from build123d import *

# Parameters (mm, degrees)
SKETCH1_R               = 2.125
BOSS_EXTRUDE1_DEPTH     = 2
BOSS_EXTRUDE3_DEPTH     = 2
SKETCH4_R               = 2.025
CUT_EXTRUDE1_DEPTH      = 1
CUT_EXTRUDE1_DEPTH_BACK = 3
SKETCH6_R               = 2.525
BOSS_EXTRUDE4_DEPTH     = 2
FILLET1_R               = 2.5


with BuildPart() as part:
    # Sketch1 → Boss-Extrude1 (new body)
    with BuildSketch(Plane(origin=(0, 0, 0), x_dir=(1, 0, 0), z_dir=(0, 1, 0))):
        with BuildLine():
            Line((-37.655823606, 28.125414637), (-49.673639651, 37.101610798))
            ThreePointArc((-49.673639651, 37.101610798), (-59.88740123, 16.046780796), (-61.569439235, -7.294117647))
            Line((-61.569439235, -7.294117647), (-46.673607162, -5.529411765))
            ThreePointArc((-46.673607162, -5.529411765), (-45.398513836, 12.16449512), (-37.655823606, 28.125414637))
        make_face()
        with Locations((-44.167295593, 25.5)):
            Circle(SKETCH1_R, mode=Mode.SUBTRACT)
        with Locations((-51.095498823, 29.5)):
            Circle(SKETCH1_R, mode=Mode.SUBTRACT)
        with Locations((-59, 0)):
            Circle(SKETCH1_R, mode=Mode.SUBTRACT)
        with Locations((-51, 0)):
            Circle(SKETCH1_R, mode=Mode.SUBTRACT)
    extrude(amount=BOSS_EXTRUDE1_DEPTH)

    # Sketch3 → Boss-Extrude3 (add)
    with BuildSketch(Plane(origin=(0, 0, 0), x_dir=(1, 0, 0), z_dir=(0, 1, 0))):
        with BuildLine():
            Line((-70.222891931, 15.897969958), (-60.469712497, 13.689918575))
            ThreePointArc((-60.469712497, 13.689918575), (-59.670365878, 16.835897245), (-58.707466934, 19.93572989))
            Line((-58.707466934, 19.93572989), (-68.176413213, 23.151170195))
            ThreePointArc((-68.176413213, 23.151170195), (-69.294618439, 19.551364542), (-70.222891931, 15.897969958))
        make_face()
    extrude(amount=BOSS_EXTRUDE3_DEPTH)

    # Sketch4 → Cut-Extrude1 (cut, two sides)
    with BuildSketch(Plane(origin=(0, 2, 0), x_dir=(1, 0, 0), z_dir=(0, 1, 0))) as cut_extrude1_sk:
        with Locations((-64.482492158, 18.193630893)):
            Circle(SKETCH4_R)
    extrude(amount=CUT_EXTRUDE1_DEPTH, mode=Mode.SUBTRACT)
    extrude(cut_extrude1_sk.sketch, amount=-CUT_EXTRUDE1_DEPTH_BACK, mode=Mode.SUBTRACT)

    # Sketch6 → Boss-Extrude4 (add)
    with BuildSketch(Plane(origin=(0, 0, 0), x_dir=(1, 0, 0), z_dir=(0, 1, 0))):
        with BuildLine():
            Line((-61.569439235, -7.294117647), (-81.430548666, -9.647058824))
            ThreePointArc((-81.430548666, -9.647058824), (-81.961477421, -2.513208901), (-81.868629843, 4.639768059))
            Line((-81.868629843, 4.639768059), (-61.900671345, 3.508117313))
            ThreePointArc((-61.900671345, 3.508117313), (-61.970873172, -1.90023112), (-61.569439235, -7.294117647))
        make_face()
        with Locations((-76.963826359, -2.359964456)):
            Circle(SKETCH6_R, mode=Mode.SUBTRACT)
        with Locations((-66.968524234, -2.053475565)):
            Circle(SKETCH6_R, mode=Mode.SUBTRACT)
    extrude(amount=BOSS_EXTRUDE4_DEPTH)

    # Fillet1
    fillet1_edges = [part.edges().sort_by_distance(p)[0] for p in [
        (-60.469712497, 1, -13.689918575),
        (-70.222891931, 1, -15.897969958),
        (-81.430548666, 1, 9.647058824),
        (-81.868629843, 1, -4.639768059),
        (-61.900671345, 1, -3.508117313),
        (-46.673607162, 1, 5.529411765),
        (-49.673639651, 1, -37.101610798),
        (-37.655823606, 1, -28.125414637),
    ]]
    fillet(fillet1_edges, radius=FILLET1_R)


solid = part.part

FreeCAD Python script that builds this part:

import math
import FreeCAD as App
import Part
import Sketcher


def edges_at(feature, points):
    """Names of the edges that pass closest to the given points."""
    edges = feature.Shape.Edges
    near = lambda p: min(range(len(edges)), key=lambda i: edges[i].distToShape(Part.Vertex(*p))[0])
    return sorted({f"Edge{near(p) + 1}" for p in points})

doc = App.newDocument("Part")
body = doc.addObject("PartDesign::Body", "Body")

sketch1 = body.newObject("Sketcher::SketchObject", "Sketch")
sketch1.AttachmentSupport = (doc.getObject("XZ_Plane"), [""])
sketch1.MapMode = "FlatFace"
sketch1.addGeometry([
    Part.LineSegment(App.Vector(-37.655824, -28.125415, 0), App.Vector(-49.67364, -37.101611, 0)),
    Part.ArcOfCircle(Part.Circle(App.Vector(0, 0, 0), App.Vector(0, 0, 1), 62), math.radians(173.243673), math.radians(216.756327)),
    Part.LineSegment(App.Vector(-61.569439, 7.294118, 0), App.Vector(-46.673607, 5.529412, 0)),
    Part.ArcOfCircle(Part.Circle(App.Vector(0, 0, 0), App.Vector(0, 0, 1), 47), math.radians(173.243673), math.radians(216.756327)),
    Part.Circle(App.Vector(-59, 0, 0), App.Vector(0, 0, 1), 2.125),
    Part.Circle(App.Vector(-51, 0, 0), App.Vector(0, 0, 1), 2.125),
    Part.Circle(App.Vector(-51.095499, -29.5, 0), App.Vector(0, 0, 1), 2.125),
    Part.Circle(App.Vector(-44.167296, -25.5, 0), App.Vector(0, 0, 1), 2.125),
], False)
sketch1.addConstraint([
    Sketcher.Constraint("Coincident", 0, 2, 1, 2),
    Sketcher.Constraint("Coincident", 1, 1, 2, 1),
    Sketcher.Constraint("Coincident", 2, 2, 3, 1),
    Sketcher.Constraint("Coincident", 3, 2, 0, 1),
    Sketcher.Constraint("Coincident", 1, 3, -1, 1),
    Sketcher.Constraint("Coincident", 3, 3, -1, 1),
    Sketcher.Constraint("Equal", 4, 5),
    Sketcher.Constraint("Equal", 5, 6),
    Sketcher.Constraint("Equal", 6, 7),
    Sketcher.Constraint("PointOnObject", 4, 3, -1),
    Sketcher.Constraint("PointOnObject", 5, 3, -1),
    Sketcher.Constraint("Radius", 1, 62.0),
    Sketcher.Constraint("Radius", 3, 47.0),
    Sketcher.Constraint("Diameter", 4, 4.25),
    Sketcher.Constraint("DistanceX", 4, 3, -1, 1, 59.0),
    Sketcher.Constraint("DistanceX", 5, 3, -1, 1, 51.0),
    Sketcher.Constraint("DistanceY", 6, 3, 7, 3, 4.0),
    Sketcher.Constraint("DistanceY", 6, 3, -1, 1, 29.5),
    Sketcher.Constraint("DistanceX", 6, 3, -1, 1, 51.095499),
    Sketcher.Constraint("DistanceX", 1, 1, 0, 2, 11.8958),
    Sketcher.Constraint("DistanceX", 0, 2, -1, 1, 49.67364),
    Sketcher.Constraint("DistanceY", -1, 1, 2, 2, 5.529412),
    Sketcher.Constraint("DistanceX", 2, 2, 7, 3, 2.506312),
    Sketcher.Constraint("DistanceX", 7, 3, 3, 2, 6.511472),
])
pad1 = body.newObject("PartDesign::Pad", "Pad")
pad1.Profile = sketch1
pad1.Length = 2
pad1.Reversed = True

sketch2 = body.newObject("Sketcher::SketchObject", "Sketch001")
sketch2.AttachmentSupport = (doc.getObject("XZ_Plane"), [""])
sketch2.MapMode = "FlatFace"
sketch2.addGeometry([
    Part.LineSegment(App.Vector(-70.222892, -15.89797, 0), App.Vector(-60.469712, -13.689919, 0)),
    Part.ArcOfCircle(Part.Circle(App.Vector(0, 0, 0), App.Vector(0, 0, 1), 62), math.radians(-167.243673), math.radians(-161.243673)),
    Part.LineSegment(App.Vector(-58.707467, -19.93573, 0), App.Vector(-68.176413, -23.15117, 0)),
    Part.ArcOfCircle(Part.Circle(App.Vector(0, 0, 0), App.Vector(0, 0, 1), 72), math.radians(-167.243673), math.radians(-161.243673)),
], False)
sketch2.addConstraint([
    Sketcher.Constraint("Coincident", 0, 2, 1, 1),
    Sketcher.Constraint("Coincident", 1, 2, 2, 1),
    Sketcher.Constraint("Coincident", 2, 2, 3, 2),
    Sketcher.Constraint("Coincident", 3, 1, 0, 1),
    Sketcher.Constraint("Coincident", 1, 3, -1, 1),
    Sketcher.Constraint("Coincident", 3, 3, -1, 1),
    Sketcher.Constraint("Radius", 1, 62.0),
    Sketcher.Constraint("Radius", 3, 72.0),
    Sketcher.Constraint("DistanceX", 2, 2, 0, 2, 7.706701),
    Sketcher.Constraint("DistanceY", 2, 2, 3, 1, 7.2532),
    Sketcher.Constraint("DistanceY", 0, 2, -1, 1, 13.689919),
    Sketcher.Constraint("DistanceY", 1, 2, -1, 1, 19.93573),
])
pad2 = body.newObject("PartDesign::Pad", "Pad001")
pad2.Profile = sketch2
pad2.Length = 2
pad2.Reversed = True

sketch3 = body.newObject("Sketcher::SketchObject", "Sketch002")
sketch3.AttachmentSupport = (doc.getObject("XZ_Plane"), [""])
sketch3.MapMode = "FlatFace"
sketch3.AttachmentOffset = App.Placement(App.Vector(0, 0, -2), App.Rotation())
sketch3.addGeometry(Part.Circle(App.Vector(-64.482492, -18.193631, 0), App.Vector(0, 0, 1), 2.025), False)
sketch3.addConstraint([
    Sketcher.Constraint("Diameter", 0, 4.05),
    Sketcher.Constraint("DistanceY", 0, 3, -1, 1, 18.193631),
    Sketcher.Constraint("DistanceX", 0, 3, -1, 1, 64.482492),
])
pocket1 = body.newObject("PartDesign::Pocket", "Pocket")
pocket1.Profile = sketch3
pocket1.Type = "ThroughAll"
pocket1.Midplane = True

sketch4 = body.newObject("Sketcher::SketchObject", "Sketch003")
sketch4.AttachmentSupport = (doc.getObject("XZ_Plane"), [""])
sketch4.MapMode = "FlatFace"
sketch4.addGeometry([
    Part.LineSegment(App.Vector(-81.430549, 9.647059, 0), App.Vector(-61.569439, 7.294118, 0)),
    Part.ArcOfCircle(Part.Circle(App.Vector(0, 0, 0), App.Vector(0, 0, 1), 62), math.radians(173.243673), math.radians(183.243673)),
    Part.LineSegment(App.Vector(-61.900671, -3.508117, 0), App.Vector(-81.86863, -4.639768, 0)),
    Part.ArcOfCircle(Part.Circle(App.Vector(0, 0, 0), App.Vector(0, 0, 1), 82), math.radians(173.243673), math.radians(183.243673)),
    Part.Circle(App.Vector(-76.963826, 2.359964, 0), App.Vector(0, 0, 1), 2.525),
    Part.Circle(App.Vector(-66.968524, 2.053476, 0), App.Vector(0, 0, 1), 2.525),
], False)
sketch4.addConstraint([
    Sketcher.Constraint("Coincident", 0, 2, 1, 1),
    Sketcher.Constraint("Coincident", 1, 2, 2, 1),
    Sketcher.Constraint("Coincident", 2, 2, 3, 2),
    Sketcher.Constraint("Coincident", 3, 1, 0, 1),
    Sketcher.Constraint("Coincident", 1, 3, -1, 1),
    Sketcher.Constraint("Coincident", 3, 3, -1, 1),
    Sketcher.Constraint("Equal", 4, 5),
    Sketcher.Constraint("Radius", 1, 62.0),
    Sketcher.Constraint("Radius", 3, 82.0),
    Sketcher.Constraint("Diameter", 4, 5.05),
    Sketcher.Constraint("DistanceX", 0, 2, -1, 1, 61.569439),
    Sketcher.Constraint("DistanceX", 1, 2, -1, 1, 61.900671),
    Sketcher.Constraint("DistanceX", 2, 2, -1, 1, 81.86863),
    Sketcher.Constraint("DistanceX", 3, 1, -1, 1, 81.430549),
    Sketcher.Constraint("DistanceY", 5, 3, 4, 3, 0.306489),
    Sketcher.Constraint("DistanceY", 1, 2, 4, 3, 5.868082),
    Sketcher.Constraint("DistanceX", 4, 3, -1, 1, 76.963826),
    Sketcher.Constraint("DistanceX", 5, 3, -1, 1, 66.968524),
])
pad3 = body.newObject("PartDesign::Pad", "Pad002")
pad3.Profile = sketch4
pad3.Length = 2
pad3.Reversed = True
doc.recompute()

fillet = body.newObject("PartDesign::Fillet", "Fillet")
fillet.Base = (pad3, edges_at(pad3, [
    (-60.47, 1, -13.69),
    (-70.223, 1, -15.898),
    (-81.431, 1, 9.647),
    (-81.869, 1, -4.64),
    (-61.901, 1, -3.508),
    (-46.674, 1, 5.529),
    (-49.674, 1, -37.102),
    (-37.656, 1, -28.125),
]))
fillet.Radius = 2.5

doc.recompute()
